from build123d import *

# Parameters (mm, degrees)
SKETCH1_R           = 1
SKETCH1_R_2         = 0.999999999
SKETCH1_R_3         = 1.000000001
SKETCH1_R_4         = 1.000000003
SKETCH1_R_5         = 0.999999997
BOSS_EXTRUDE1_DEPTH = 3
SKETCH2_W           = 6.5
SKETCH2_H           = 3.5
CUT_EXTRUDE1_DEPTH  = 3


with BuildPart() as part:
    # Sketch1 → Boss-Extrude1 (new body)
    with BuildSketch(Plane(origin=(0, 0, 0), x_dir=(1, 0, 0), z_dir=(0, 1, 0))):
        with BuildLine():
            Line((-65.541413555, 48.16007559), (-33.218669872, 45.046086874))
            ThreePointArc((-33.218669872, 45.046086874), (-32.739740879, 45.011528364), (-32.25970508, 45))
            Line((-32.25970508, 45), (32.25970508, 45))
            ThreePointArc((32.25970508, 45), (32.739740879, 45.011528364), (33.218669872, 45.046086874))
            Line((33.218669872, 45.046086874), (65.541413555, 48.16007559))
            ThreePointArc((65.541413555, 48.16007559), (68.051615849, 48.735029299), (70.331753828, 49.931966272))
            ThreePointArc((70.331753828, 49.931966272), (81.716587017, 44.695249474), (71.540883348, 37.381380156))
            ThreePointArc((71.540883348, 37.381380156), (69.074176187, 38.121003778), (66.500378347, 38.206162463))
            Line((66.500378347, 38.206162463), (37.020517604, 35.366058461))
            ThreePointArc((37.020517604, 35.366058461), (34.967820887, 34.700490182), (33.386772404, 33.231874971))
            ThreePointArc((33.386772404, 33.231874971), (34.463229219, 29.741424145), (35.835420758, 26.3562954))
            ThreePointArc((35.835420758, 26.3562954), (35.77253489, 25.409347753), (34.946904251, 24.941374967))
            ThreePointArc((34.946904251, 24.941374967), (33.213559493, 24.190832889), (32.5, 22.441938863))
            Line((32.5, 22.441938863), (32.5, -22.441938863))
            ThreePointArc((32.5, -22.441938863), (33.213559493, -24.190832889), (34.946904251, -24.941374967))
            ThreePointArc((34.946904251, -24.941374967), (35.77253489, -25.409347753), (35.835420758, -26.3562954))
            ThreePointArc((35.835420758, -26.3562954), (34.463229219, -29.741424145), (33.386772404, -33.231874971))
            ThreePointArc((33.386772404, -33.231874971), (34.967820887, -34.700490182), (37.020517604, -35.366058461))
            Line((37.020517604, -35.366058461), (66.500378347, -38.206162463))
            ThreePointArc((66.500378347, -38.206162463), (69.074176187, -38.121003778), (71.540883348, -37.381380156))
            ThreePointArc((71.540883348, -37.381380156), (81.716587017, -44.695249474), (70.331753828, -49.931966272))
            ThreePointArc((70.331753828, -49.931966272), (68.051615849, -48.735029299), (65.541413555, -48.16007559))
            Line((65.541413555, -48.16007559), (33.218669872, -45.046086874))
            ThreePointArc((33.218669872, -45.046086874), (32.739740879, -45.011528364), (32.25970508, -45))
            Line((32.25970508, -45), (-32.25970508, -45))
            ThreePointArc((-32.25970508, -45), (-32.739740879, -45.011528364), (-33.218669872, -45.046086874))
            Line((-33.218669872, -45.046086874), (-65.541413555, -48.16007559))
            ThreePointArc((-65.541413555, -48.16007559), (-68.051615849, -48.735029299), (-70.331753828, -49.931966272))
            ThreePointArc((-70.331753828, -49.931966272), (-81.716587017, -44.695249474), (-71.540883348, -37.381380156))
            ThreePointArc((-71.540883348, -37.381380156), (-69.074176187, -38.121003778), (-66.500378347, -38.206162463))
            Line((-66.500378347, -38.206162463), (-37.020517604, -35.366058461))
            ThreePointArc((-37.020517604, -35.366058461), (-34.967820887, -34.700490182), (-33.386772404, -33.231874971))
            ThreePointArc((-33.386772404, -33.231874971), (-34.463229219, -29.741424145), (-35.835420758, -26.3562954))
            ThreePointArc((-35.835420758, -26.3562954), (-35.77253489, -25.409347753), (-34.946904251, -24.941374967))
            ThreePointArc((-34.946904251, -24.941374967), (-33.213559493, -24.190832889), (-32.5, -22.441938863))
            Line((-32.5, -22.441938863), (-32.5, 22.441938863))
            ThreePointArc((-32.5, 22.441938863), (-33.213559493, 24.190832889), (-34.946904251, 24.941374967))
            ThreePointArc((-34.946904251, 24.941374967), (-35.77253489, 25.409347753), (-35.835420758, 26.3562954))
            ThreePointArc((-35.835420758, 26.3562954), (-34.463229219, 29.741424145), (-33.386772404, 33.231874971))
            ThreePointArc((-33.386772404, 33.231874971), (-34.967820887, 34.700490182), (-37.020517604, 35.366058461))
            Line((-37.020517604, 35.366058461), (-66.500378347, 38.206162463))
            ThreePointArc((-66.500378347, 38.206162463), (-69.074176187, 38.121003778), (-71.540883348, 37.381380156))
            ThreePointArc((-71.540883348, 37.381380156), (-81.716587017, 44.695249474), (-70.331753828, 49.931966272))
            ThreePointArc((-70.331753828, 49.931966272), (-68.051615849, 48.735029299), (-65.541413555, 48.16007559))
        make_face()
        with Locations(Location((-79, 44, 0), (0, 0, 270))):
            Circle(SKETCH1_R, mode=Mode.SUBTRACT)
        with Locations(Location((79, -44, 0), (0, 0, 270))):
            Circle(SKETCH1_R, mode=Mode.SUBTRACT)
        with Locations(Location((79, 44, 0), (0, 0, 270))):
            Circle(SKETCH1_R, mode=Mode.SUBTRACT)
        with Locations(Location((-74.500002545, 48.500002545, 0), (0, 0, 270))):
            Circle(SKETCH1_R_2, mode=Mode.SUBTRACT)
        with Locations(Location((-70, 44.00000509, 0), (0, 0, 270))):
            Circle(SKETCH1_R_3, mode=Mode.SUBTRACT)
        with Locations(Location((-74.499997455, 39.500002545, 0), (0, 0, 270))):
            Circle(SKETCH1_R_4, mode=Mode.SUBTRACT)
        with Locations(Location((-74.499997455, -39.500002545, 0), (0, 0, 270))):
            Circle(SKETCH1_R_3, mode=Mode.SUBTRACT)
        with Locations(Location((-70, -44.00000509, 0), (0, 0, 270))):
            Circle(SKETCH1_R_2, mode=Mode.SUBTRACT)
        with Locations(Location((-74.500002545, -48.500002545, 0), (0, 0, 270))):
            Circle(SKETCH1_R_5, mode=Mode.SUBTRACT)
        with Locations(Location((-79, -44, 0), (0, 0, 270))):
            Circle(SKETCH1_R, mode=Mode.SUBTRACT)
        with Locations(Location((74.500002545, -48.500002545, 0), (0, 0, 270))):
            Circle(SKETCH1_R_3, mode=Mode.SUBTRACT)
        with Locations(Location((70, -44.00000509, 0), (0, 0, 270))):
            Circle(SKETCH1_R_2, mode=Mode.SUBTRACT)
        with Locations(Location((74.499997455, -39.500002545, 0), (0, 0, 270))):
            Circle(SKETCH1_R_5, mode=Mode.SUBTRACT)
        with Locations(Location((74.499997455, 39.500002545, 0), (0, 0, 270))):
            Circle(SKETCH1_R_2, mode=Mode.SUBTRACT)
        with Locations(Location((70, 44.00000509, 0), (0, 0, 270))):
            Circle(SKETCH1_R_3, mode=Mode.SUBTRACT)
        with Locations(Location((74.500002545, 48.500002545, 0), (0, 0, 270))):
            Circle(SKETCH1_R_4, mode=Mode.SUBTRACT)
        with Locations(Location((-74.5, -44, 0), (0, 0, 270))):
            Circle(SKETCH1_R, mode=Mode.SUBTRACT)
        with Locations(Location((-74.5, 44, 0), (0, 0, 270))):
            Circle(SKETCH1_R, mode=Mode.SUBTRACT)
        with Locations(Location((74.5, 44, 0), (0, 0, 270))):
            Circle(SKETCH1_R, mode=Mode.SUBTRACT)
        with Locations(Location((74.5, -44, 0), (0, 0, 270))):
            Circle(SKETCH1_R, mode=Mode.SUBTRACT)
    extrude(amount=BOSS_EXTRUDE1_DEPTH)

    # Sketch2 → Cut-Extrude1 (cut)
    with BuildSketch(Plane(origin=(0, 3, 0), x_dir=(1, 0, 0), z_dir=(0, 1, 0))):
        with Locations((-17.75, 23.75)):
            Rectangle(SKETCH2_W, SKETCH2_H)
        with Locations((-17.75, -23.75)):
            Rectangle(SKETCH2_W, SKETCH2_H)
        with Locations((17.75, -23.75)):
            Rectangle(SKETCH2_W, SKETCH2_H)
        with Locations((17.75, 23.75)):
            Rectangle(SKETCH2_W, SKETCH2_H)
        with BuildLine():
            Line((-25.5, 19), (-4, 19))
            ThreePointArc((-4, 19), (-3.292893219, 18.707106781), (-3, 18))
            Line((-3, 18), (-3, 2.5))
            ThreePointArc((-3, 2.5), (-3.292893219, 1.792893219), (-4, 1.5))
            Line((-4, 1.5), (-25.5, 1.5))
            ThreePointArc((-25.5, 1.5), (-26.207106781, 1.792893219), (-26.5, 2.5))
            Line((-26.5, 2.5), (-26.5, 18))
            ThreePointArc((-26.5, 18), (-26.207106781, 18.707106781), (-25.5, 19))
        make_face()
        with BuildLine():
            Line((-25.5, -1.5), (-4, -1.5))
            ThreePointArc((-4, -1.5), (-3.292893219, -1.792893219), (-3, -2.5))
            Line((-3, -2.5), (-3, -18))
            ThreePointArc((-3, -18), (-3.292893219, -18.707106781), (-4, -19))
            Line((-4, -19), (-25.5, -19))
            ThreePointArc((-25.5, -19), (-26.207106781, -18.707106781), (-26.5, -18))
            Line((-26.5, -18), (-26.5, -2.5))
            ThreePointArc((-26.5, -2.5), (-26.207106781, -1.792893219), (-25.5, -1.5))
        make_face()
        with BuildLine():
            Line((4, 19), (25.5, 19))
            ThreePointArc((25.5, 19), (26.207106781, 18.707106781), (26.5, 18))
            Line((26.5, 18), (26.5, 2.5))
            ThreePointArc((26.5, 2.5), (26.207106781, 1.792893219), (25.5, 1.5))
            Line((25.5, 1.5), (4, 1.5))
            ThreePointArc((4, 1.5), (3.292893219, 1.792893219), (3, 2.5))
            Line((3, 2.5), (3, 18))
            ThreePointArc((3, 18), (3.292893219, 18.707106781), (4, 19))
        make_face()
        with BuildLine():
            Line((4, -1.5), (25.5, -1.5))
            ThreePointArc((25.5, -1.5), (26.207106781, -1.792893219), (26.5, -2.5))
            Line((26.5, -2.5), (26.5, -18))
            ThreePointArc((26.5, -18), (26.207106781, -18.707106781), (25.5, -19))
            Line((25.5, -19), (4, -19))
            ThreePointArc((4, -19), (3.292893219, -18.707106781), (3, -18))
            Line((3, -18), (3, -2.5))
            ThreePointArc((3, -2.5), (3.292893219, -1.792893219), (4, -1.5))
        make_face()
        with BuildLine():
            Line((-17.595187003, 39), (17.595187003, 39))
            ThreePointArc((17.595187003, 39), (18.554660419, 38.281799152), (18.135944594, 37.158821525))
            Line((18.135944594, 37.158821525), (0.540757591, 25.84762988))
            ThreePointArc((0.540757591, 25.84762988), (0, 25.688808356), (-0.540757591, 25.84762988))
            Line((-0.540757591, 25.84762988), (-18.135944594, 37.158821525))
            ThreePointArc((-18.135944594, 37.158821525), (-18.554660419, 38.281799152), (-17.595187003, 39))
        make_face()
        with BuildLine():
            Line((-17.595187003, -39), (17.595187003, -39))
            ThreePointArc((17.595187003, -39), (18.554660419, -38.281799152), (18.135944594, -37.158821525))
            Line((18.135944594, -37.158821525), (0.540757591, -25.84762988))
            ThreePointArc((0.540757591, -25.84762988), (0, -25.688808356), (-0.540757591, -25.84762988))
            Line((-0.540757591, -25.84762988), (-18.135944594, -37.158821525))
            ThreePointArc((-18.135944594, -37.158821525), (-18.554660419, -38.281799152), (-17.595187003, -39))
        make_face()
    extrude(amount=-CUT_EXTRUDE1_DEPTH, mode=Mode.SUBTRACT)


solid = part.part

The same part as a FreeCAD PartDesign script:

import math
import FreeCAD as App
import Part
import Sketcher

doc = App.newDocument("Part")
body = doc.addObject("PartDesign::Body", "Body")

# Sketch on XZ plane
sketch1 = doc.addObject("Sketcher::SketchObject", "Sketch")
body.addObject(sketch1)
sketch1.AttachmentSupport = (doc.XZ_Plane, [""])
sketch1.MapMode = "FlatFace"
sketch1.addGeometry([
    Part.LineSegment(App.Vector(-33.2, -45, 0), App.Vector(-65.5, -48.2, 0)),  # 0
    Part.ArcOfCircle(Part.Circle(App.Vector(-64.6, -58.1, 0), App.Vector(0, 0, 1), 10), math.radians(96), math.radians(125)),  # 1
    Part.ArcOfCircle(Part.Circle(App.Vector(-74.5, -44, 0), App.Vector(0, 0, 1), 7.2), math.radians(66), math.radians(305)),  # 2
    Part.ArcOfCircle(Part.Circle(App.Vector(-67.5, -28.3, 0), App.Vector(0, 0, 1), 10), math.radians(-114), math.radians(-84)),  # 3
    Part.LineSegment(App.Vector(-66.5, -38.2, 0), App.Vector(-37, -35.4, 0)),  # 4
    Part.ArcOfCircle(Part.Circle(App.Vector(-37.5, -30.4, 0), App.Vector(0, 0, 1), 5), math.radians(-84), math.radians(-35)),  # 5
    Part.ArcOfCircle(Part.Circle(App.Vector(-74.5, -44, 0), App.Vector(0, 0, 1), 42.5), math.radians(14.68), math.radians(24.53)),  # 6
    Part.ArcOfCircle(Part.Circle(App.Vector(-34.9, -25.9, 0), App.Vector(0, 0, 1), 1), math.radians(91), math.radians(205)),  # 7
    Part.ArcOfCircle(Part.Circle(App.Vector(-35, -22.4, 0), App.Vector(0, 0, 1), 2.5), math.radians(-89), math.radians(0)),  # 8
    Part.LineSegment(App.Vector(-32.5, -22.4, 0), App.Vector(-32.5, 22.4, 0)),  # 9
    Part.ArcOfCircle(Part.Circle(App.Vector(-35, 22.4, 0), App.Vector(0, 0, 1), 2.5), math.radians(0), math.radians(89)),  # 10
    Part.ArcOfCircle(Part.Circle(App.Vector(-34.9, 25.9, 0), App.Vector(0, 0, 1), 1), math.radians(155), math.radians(269)),  # 11
    Part.ArcOfCircle(Part.Circle(App.Vector(-74.5, 44, 0), App.Vector(0, 0, 1), 42.5), math.radians(-24.53), math.radians(-14.68)),  # 12
    Part.ArcOfCircle(Part.Circle(App.Vector(-37.5, 30.4, 0), App.Vector(0, 0, 1), 5), math.radians(35), math.radians(84)),  # 13
    Part.LineSegment(App.Vector(-37, 35.4, 0), App.Vector(-66.5, 38.2, 0)),  # 14
    Part.ArcOfCircle(Part.Circle(App.Vector(-67.5, 28.3, 0), App.Vector(0, 0, 1), 10), math.radians(84), math.radians(114)),  # 15
    Part.ArcOfCircle(Part.Circle(App.Vector(-74.5, 44, 0), App.Vector(0, 0, 1), 7.2), math.radians(55), math.radians(294)),  # 16
    Part.ArcOfCircle(Part.Circle(App.Vector(-64.6, 58.1, 0), App.Vector(0, 0, 1), 10), math.radians(-125), math.radians(-96)),  # 17
    Part.LineSegment(App.Vector(-65.5, 48.2, 0), App.Vector(-33.2, 45, 0)),  # 18
    Part.ArcOfCircle(Part.Circle(App.Vector(-32.3, 55, 0), App.Vector(0, 0, 1), 10), math.radians(-95.5), math.radians(-90)),  # 19
    Part.LineSegment(App.Vector(-32.3, 45, 0), App.Vector(32.3, 45, 0)),  # 20
    Part.ArcOfCircle(Part.Circle(App.Vector(32.3, 55, 0), App.Vector(0, 0, 1), 10), math.radians(-90), math.radians(-84.5)),  # 21
    Part.LineSegment(App.Vector(33.2, 45, 0), App.Vector(65.5, 48.2, 0)),  # 22
    Part.ArcOfCircle(Part.Circle(App.Vector(64.6, 58.1, 0), App.Vector(0, 0, 1), 10), math.radians(-84), math.radians(-55)),  # 23
    Part.ArcOfCircle(Part.Circle(App.Vector(74.5, 44, 0), App.Vector(0, 0, 1), 7.2), math.radians(-114), math.radians(125)),  # 24
    Part.ArcOfCircle(Part.Circle(App.Vector(67.5, 28.3, 0), App.Vector(0, 0, 1), 10), math.radians(66), math.radians(96)),  # 25
    Part.LineSegment(App.Vector(66.5, 38.2, 0), App.Vector(37, 35.4, 0)),  # 26
    Part.ArcOfCircle(Part.Circle(App.Vector(37.5, 30.4, 0), App.Vector(0, 0, 1), 5), math.radians(96), math.radians(145)),  # 27
    Part.ArcOfCircle(Part.Circle(App.Vector(74.5, 44, 0), App.Vector(0, 0, 1), 42.5), math.radians(-165.32), math.radians(-155.47)),  # 28
    Part.ArcOfCircle(Part.Circle(App.Vector(34.9, 25.9, 0), App.Vector(0, 0, 1), 1), math.radians(-89), math.radians(25)),  # 29
    Part.ArcOfCircle(Part.Circle(App.Vector(35, 22.4, 0), App.Vector(0, 0, 1), 2.5), math.radians(91), math.radians(180)),  # 30
    Part.LineSegment(App.Vector(32.5, 22.4, 0), App.Vector(32.5, -22.4, 0)),  # 31
    Part.ArcOfCircle(Part.Circle(App.Vector(35, -22.4, 0), App.Vector(0, 0, 1), 2.5), math.radians(180), math.radians(269)),  # 32
    Part.ArcOfCircle(Part.Circle(App.Vector(34.9, -25.9, 0), App.Vector(0, 0, 1), 1), math.radians(-25), math.radians(89)),  # 33
    Part.ArcOfCircle(Part.Circle(App.Vector(74.5, -44, 0), App.Vector(0, 0, 1), 42.5), math.radians(155.47), math.radians(165.32)),  # 34
    Part.ArcOfCircle(Part.Circle(App.Vector(37.5, -30.4, 0), App.Vector(0, 0, 1), 5), math.radians(-145), math.radians(-96)),  # 35
    Part.LineSegment(App.Vector(37, -35.4, 0), App.Vector(66.5, -38.2, 0)),  # 36
    Part.ArcOfCircle(Part.Circle(App.Vector(67.5, -28.3, 0), App.Vector(0, 0, 1), 10), math.radians(-96), math.radians(-66)),  # 37
    Part.ArcOfCircle(Part.Circle(App.Vector(74.5, -44, 0), App.Vector(0, 0, 1), 7.2), math.radians(-125), math.radians(114)),  # 38
    Part.ArcOfCircle(Part.Circle(App.Vector(64.6, -58.1, 0), App.Vector(0, 0, 1), 10), math.radians(55), math.radians(84)),  # 39
    Part.LineSegment(App.Vector(65.5, -48.2, 0), App.Vector(33.2, -45, 0)),  # 40
    Part.ArcOfCircle(Part.Circle(App.Vector(32.3, -55, 0), App.Vector(0, 0, 1), 10), math.radians(84.5), math.radians(90)),  # 41
    Part.LineSegment(App.Vector(32.3, -45, 0), App.Vector(-32.3, -45, 0)),  # 42
    Part.ArcOfCircle(Part.Circle(App.Vector(-32.3, -55, 0), App.Vector(0, 0, 1), 10), math.radians(90), math.radians(95.5)),  # 43
    Part.Circle(App.Vector(74.5, 48.5, 0), App.Vector(0, 0, 1), 1),  # 44
    Part.Circle(App.Vector(79, 44, 0), App.Vector(0, 0, 1), 1),  # 45
    Part.Circle(App.Vector(74.5, 44, 0), App.Vector(0, 0, 1), 1),  # 46
    Part.Circle(App.Vector(70, 44, 0), App.Vector(0, 0, 1), 1),  # 47
    Part.Circle(App.Vector(74.5, 39.5, 0), App.Vector(0, 0, 1), 1),  # 48
    Part.Circle(App.Vector(-74.5, 48.5, 0), App.Vector(0, 0, 1), 1),  # 49
    Part.Circle(App.Vector(-70, 44, 0), App.Vector(0, 0, 1), 1),  # 50
    Part.Circle(App.Vector(-74.5, 44, 0), App.Vector(0, 0, 1), 1),  # 51
    Part.Circle(App.Vector(-79, 44, 0), App.Vector(0, 0, 1), 1),  # 52
    Part.Circle(App.Vector(-74.5, 39.5, 0), App.Vector(0, 0, 1), 1),  # 53
    Part.Circle(App.Vector(74.5, -39.5, 0), App.Vector(0, 0, 1), 1),  # 54
    Part.Circle(App.Vector(79, -44, 0), App.Vector(0, 0, 1), 1),  # 55
    Part.Circle(App.Vector(74.5, -44, 0), App.Vector(0, 0, 1), 1),  # 56
    Part.Circle(App.Vector(74.5, -48.5, 0), App.Vector(0, 0, 1), 1),  # 57
    Part.Circle(App.Vector(70, -44, 0), App.Vector(0, 0, 1), 1),  # 58
    Part.Circle(App.Vector(-74.5, -39.5, 0), App.Vector(0, 0, 1), 1),  # 59
    Part.Circle(App.Vector(-70, -44, 0), App.Vector(0, 0, 1), 1),  # 60
    Part.Circle(App.Vector(-74.5, -44, 0), App.Vector(0, 0, 1), 1),  # 61
    Part.Circle(App.Vector(-79, -44, 0), App.Vector(0, 0, 1), 1),  # 62
    Part.Circle(App.Vector(-74.5, -48.5, 0), App.Vector(0, 0, 1), 1),  # 63
], False)
sketch1.addConstraint([
    Sketcher.Constraint("Tangent", 0, 2, 1, 1),
    Sketcher.Constraint("Tangent", 1, 2, 2, 2),
    Sketcher.Constraint("Tangent", 2, 1, 3, 1),
    Sketcher.Constraint("Tangent", 3, 2, 4, 1),
    Sketcher.Constraint("Tangent", 4, 2, 5, 1),
    Sketcher.Constraint("Coincident", 5, 2, 6, 1),
    Sketcher.Constraint("Tangent", 6, 2, 7, 2),
    Sketcher.Constraint("Tangent", 7, 1, 8, 1),
    Sketcher.Constraint("Tangent", 8, 2, 9, 1),
    Sketcher.Constraint("Tangent", 9, 2, 10, 1),
    Sketcher.Constraint("Tangent", 10, 2, 11, 2),
    Sketcher.Constraint("Tangent", 11, 1, 12, 1),
    Sketcher.Constraint("Coincident", 12, 2, 13, 1),
    Sketcher.Constraint("Tangent", 13, 2, 14, 1),
    Sketcher.Constraint("Tangent", 14, 2, 15, 1),
    Sketcher.Constraint("Tangent", 15, 2, 16, 2),
    Sketcher.Constraint("Tangent", 16, 1, 17, 1),
    Sketcher.Constraint("Tangent", 17, 2, 18, 1),
    Sketcher.Constraint("Tangent", 18, 2, 19, 1),
    Sketcher.Constraint("Tangent", 19, 2, 20, 1),
    Sketcher.Constraint("Tangent", 20, 2, 21, 1),
    Sketcher.Constraint("Tangent", 21, 2, 22, 1),
    Sketcher.Constraint("Tangent", 22, 2, 23, 1),
    Sketcher.Constraint("Tangent", 23, 2, 24, 2),
    Sketcher.Constraint("Tangent", 24, 1, 25, 1),
    Sketcher.Constraint("Tangent", 25, 2, 26, 1),
    Sketcher.Constraint("Tangent", 26, 2, 27, 1),
    Sketcher.Constraint("Coincident", 27, 2, 28, 1),
    Sketcher.Constraint("Tangent", 28, 2, 29, 2),
    Sketcher.Constraint("Tangent", 29, 1, 30, 1),
    Sketcher.Constraint("Tangent", 30, 2, 31, 1),
    Sketcher.Constraint("Tangent", 31, 2, 32, 1),
    Sketcher.Constraint("Tangent", 32, 2, 33, 2),
    Sketcher.Constraint("Tangent", 33, 1, 34, 1),
    Sketcher.Constraint("Coincident", 34, 2, 35, 1),
    Sketcher.Constraint("Tangent", 35, 2, 36, 1),
    Sketcher.Constraint("Tangent", 36, 2, 37, 1),
    Sketcher.Constraint("Tangent", 37, 2, 38, 2),
    Sketcher.Constraint("Tangent", 38, 1, 39, 1),
    Sketcher.Constraint("Tangent", 39, 2, 40, 1),
    Sketcher.Constraint("Tangent", 40, 2, 41, 1),
    Sketcher.Constraint("Tangent", 41, 2, 42, 1),
    Sketcher.Constraint("Tangent", 42, 2, 43, 1),
    Sketcher.Constraint("Tangent", 43, 2, 0, 1),
    Sketcher.Constraint("Vertical", 9),
    Sketcher.Constraint("Horizontal", 20),
    Sketcher.Constraint("Vertical", 31),
    Sketcher.Constraint("Horizontal", 42),
    Sketcher.Constraint("Coincident", 6, 3, 2, 3),
    Sketcher.Constraint("Coincident", 16, 3, 12, 3),
    Sketcher.Constraint("Coincident", 28, 3, 24, 3),
    Sketcher.Constraint("Coincident", 38, 3, 34, 3),
    Sketcher.Constraint("Coincident", 46, 3, 24, 3),
    Sketcher.Constraint("Coincident", 51, 3, 12, 3),
    Sketcher.Constraint("Coincident", 56, 3, 34, 3),
    Sketcher.Constraint("Coincident", 61, 3, 2, 3),
    Sketcher.Constraint("Equal", 1, 3),
    Sketcher.Constraint("Equal", 8, 10),
    Sketcher.Constraint("Equal", 7, 11),
    Sketcher.Constraint("Equal", 6, 12),
    Sketcher.Constraint("Equal", 5, 13),
    Sketcher.Constraint("Equal", 3, 15),
    Sketcher.Constraint("Equal", 2, 16),
    Sketcher.Constraint("Equal", 15, 17),
    Sketcher.Constraint("Equal", 17, 19),
    Sketcher.Constraint("Equal", 19, 21),
    Sketcher.Constraint("Equal", 21, 23),
    Sketcher.Constraint("Equal", 16, 24),
    Sketcher.Constraint("Equal", 23, 25),
    Sketcher.Constraint("Equal", 13, 27),
    Sketcher.Constraint("Equal", 12, 28),
    Sketcher.Constraint("Equal", 11, 29),
    Sketcher.Constraint("Equal", 10, 30),
    Sketcher.Constraint("Equal", 30, 32),
    Sketcher.Constraint("Equal", 29, 33),
    Sketcher.Constraint("Equal", 28, 34),
    Sketcher.Constraint("Equal", 27, 35),
    Sketcher.Constraint("Equal", 25, 37),
    Sketcher.Constraint("Equal", 24, 38),
    Sketcher.Constraint("Equal", 37, 39),
    Sketcher.Constraint("Equal", 39, 41),
    Sketcher.Constraint("Equal", 41, 43),
    Sketcher.Constraint("Equal", 33, 44),
    Sketcher.Constraint("Equal", 44, 45),
    Sketcher.Constraint("Equal", 45, 46),
    Sketcher.Constraint("Equal", 46, 47),
    Sketcher.Constraint("Equal", 47, 48),
    Sketcher.Constraint("Equal", 48, 49),
    Sketcher.Constraint("Equal", 49, 50),
    Sketcher.Constraint("Equal", 50, 51),
    Sketcher.Constraint("Equal", 51, 52),
    Sketcher.Constraint("Equal", 52, 53),
    Sketcher.Constraint("Equal", 53, 54),
    Sketcher.Constraint("Equal", 54, 55),
    Sketcher.Constraint("Equal", 55, 56),
    Sketcher.Constraint("Equal", 56, 57),
    Sketcher.Constraint("Equal", 57, 58),
    Sketcher.Constraint("Equal", 58, 59),
    Sketcher.Constraint("Equal", 59, 60),
    Sketcher.Constraint("Equal", 60, 61),
    Sketcher.Constraint("Equal", 61, 62),
    Sketcher.Constraint("Equal", 62, 63),
    Sketcher.Constraint("Symmetric", 1, 3, 23, 3, -1, 1),
    Sketcher.Constraint("Symmetric", 3, 3, 25, 3, -1, 1),
    Sketcher.Constraint("Symmetric", 5, 3, 27, 3, -1, 1),
    Sketcher.Constraint("Symmetric", 8, 3, 30, 3, -1, 1),
    Sketcher.Constraint("Symmetric", 11, 3, 33, 3, -1, 1),
    Sketcher.Constraint("Symmetric", 13, 3, 35, 3, -1, 1),
    Sketcher.Constraint("Symmetric", 15, 3, 37, 3, -1, 1),
    Sketcher.Constraint("Symmetric", 19, 3, 41, 3, -1, 1),
    Sketcher.Constraint("Symmetric", 53, 3, 54, 3, -1, 1),
    Sketcher.Constraint("Symmetric", 52, 3, 55, 3, -1, 1),
    Sketcher.Constraint("Symmetric", 49, 3, 57, 3, -1, 1),
    Sketcher.Constraint("Symmetric", 50, 3, 58, 3, -1, 1),
    Sketcher.Constraint("Symmetric", 48, 3, 59, 3, -1, 1),
    Sketcher.Constraint("Symmetric", 47, 3, 60, 3, -1, 1),
    Sketcher.Constraint("Symmetric", 45, 3, 62, 3, -1, 1),
    Sketcher.Constraint("Symmetric", 44, 3, 63, 3, -1, 1),
    Sketcher.Constraint("Symmetric", 17, 3, 23, 3, -2),
    Sketcher.Constraint("Symmetric", 15, 3, 25, 3, -2),
    Sketcher.Constraint("Symmetric", 13, 3, 27, 3, -2),
    Sketcher.Constraint("Symmetric", 44, 3, 49, 3, -2),
    Sketcher.Constraint("Symmetric", 47, 3, 50, 3, -2),
    Sketcher.Constraint("Symmetric", 45, 3, 52, 3, -2),
    Sketcher.Constraint("Symmetric", 48, 3, 53, 3, -2),
    Sketcher.Constraint("Symmetric", 0, 2, 39, 2, -2),
    Sketcher.Constraint("Parallel", 0, 4),
    Sketcher.Constraint("Parallel", 4, 22),
    Sketcher.Constraint("Horizontal", 11, 3, 29, 3),
    Sketcher.Constraint("Horizontal", 28, 3, 45, 3),
    Sketcher.Constraint("Diameter", 44, 2.0),
    Sketcher.Constraint("Radius", 1, 10.0),
    Sketcher.Constraint("Radius", 5, 5.0),
    Sketcher.Constraint("Radius", 6, 42.5),
    Sketcher.Constraint("Radius", 8, 2.5),
    Sketcher.Constraint("Radius", 2, 7.25),
    Sketcher.Constraint("DistanceY", 2, 3, -1, 1, 44.0),
    Sketcher.Constraint("DistanceX", 8, 3, -1, 1, 35.0),
    Sketcher.Constraint("DistanceY", -1, 1, 19, 3, 55.0),
    Sketcher.Constraint("DistanceX", -1, 1, 45, 3, 79.0),
    Sketcher.Constraint("DistanceX", -1, 1, 47, 3, 70.0),
    Sketcher.Constraint("DistanceX", 2, 3, -1, 1, 74.5),
    Sketcher.Constraint("DistanceX", 5, 3, -1, 1, 37.5),
    Sketcher.Constraint("Distance", 0, 32.472399),
    Sketcher.Constraint("DistanceX", 20, 1, 20, 2, 64.51941),
    Sketcher.Constraint("DistanceY", 5, 3, -1, 1, 30.389102),
    Sketcher.Constraint("DistanceY", 9, 1, 9, 2, 44.883878),
    Sketcher.Constraint("DistanceX", -1, 1, 44, 3, 74.500003),
    Sketcher.Constraint("DistanceY", -1, 1, 44, 3, 48.500003),
    Sketcher.Constraint("DistanceY", -1, 1, 47, 3, 44.000005),
    Sketcher.Constraint("DistanceX", -1, 1, 48, 3, 74.499997),
    Sketcher.Constraint("DistanceY", -1, 1, 48, 3, 39.500003),
])
pad1 = doc.addObject("PartDesign::Pad", "Pad")
body.addObject(pad1)
pad1.Profile = sketch1
pad1.Length = 3
pad1.Reversed = True

# Sketch on XZ plane
sketch2 = doc.addObject("Sketcher::SketchObject", "Sketch001")
body.addObject(sketch2)
sketch2.AttachmentSupport = (doc.XZ_Plane, [""])
sketch2.MapMode = "FlatFace"
sketch2.AttachmentOffset = App.Placement(App.Vector(0, 0, -3), App.Rotation())
sketch2.addGeometry([
    Part.LineSegment(App.Vector(-21, -25.5, 0), App.Vector(-21, -22, 0)),  # 0
    Part.LineSegment(App.Vector(-21, -22, 0), App.Vector(-14.5, -22, 0)),  # 1
    Part.LineSegment(App.Vector(-14.5, -22, 0), App.Vector(-14.5, -25.5, 0)),  # 2
    Part.LineSegment(App.Vector(-14.5, -25.5, 0), App.Vector(-21, -25.5, 0)),  # 3
    Part.LineSegment(App.Vector(-21, 22, 0), App.Vector(-21, 25.5, 0)),  # 4
    Part.LineSegment(App.Vector(-21, 25.5, 0), App.Vector(-14.5, 25.5, 0)),  # 5
    Part.LineSegment(App.Vector(-14.5, 25.5, 0), App.Vector(-14.5, 22, 0)),  # 6
    Part.LineSegment(App.Vector(-14.5, 22, 0), App.Vector(-21, 22, 0)),  # 7
    Part.LineSegment(App.Vector(14.5, 22, 0), App.Vector(14.5, 25.5, 0)),  # 8
    Part.LineSegment(App.Vector(14.5, 25.5, 0), App.Vector(21, 25.5, 0)),  # 9
    Part.LineSegment(App.Vector(21, 25.5, 0), App.Vector(21, 22, 0)),  # 10
    Part.LineSegment(App.Vector(21, 22, 0), App.Vector(14.5, 22, 0)),  # 11
    Part.LineSegment(App.Vector(14.5, -25.5, 0), App.Vector(14.5, -22, 0)),  # 12
    Part.LineSegment(App.Vector(14.5, -22, 0), App.Vector(21, -22, 0)),  # 13
    Part.LineSegment(App.Vector(21, -22, 0), App.Vector(21, -25.5, 0)),  # 14
    Part.LineSegment(App.Vector(21, -25.5, 0), App.Vector(14.5, -25.5, 0)),  # 15
    Part.LineSegment(App.Vector(-4, -19, 0), App.Vector(-25.5, -19, 0)),  # 16
    Part.ArcOfCircle(Part.Circle(App.Vector(-25.5, -18, 0), App.Vector(0, 0, 1), 1), math.radians(-180), math.radians(-90)),  # 17
    Part.LineSegment(App.Vector(-26.5, -18, 0), App.Vector(-26.5, -2.5, 0)),  # 18
    Part.ArcOfCircle(Part.Circle(App.Vector(-25.5, -2.5, 0), App.Vector(0, 0, 1), 1), math.radians(90), math.radians(180)),  # 19
    Part.LineSegment(App.Vector(-25.5, -1.5, 0), App.Vector(-4, -1.5, 0)),  # 20
    Part.ArcOfCircle(Part.Circle(App.Vector(-4, -2.5, 0), App.Vector(0, 0, 1), 1), math.radians(0), math.radians(90)),  # 21
    Part.LineSegment(App.Vector(-3, -2.5, 0), App.Vector(-3, -18, 0)),  # 22
    Part.ArcOfCircle(Part.Circle(App.Vector(-4, -18, 0), App.Vector(0, 0, 1), 1), math.radians(-90), math.radians(0)),  # 23
    Part.LineSegment(App.Vector(-4, 1.5, 0), App.Vector(-25.5, 1.5, 0)),  # 24
    Part.ArcOfCircle(Part.Circle(App.Vector(-25.5, 2.5, 0), App.Vector(0, 0, 1), 1), math.radians(-180), math.radians(-90)),  # 25
    Part.LineSegment(App.Vector(-26.5, 2.5, 0), App.Vector(-26.5, 18, 0)),  # 26
    Part.ArcOfCircle(Part.Circle(App.Vector(-25.5, 18, 0), App.Vector(0, 0, 1), 1), math.radians(90), math.radians(180)),  # 27
    Part.LineSegment(App.Vector(-25.5, 19, 0), App.Vector(-4, 19, 0)),  # 28
    Part.ArcOfCircle(Part.Circle(App.Vector(-4, 18, 0), App.Vector(0, 0, 1), 1), math.radians(0), math.radians(90)),  # 29
    Part.LineSegment(App.Vector(-3, 18, 0), App.Vector(-3, 2.5, 0)),  # 30
    Part.ArcOfCircle(Part.Circle(App.Vector(-4, 2.5, 0), App.Vector(0, 0, 1), 1), math.radians(-90), math.radians(0)),  # 31
    Part.LineSegment(App.Vector(25.5, -19, 0), App.Vector(4, -19, 0)),  # 32
    Part.ArcOfCircle(Part.Circle(App.Vector(4, -18, 0), App.Vector(0, 0, 1), 1), math.radians(-180), math.radians(-90)),  # 33
    Part.LineSegment(App.Vector(3, -18, 0), App.Vector(3, -2.5, 0)),  # 34
    Part.ArcOfCircle(Part.Circle(App.Vector(4, -2.5, 0), App.Vector(0, 0, 1), 1), math.radians(90), math.radians(180)),  # 35
    Part.LineSegment(App.Vector(4, -1.5, 0), App.Vector(25.5, -1.5, 0)),  # 36
    Part.ArcOfCircle(Part.Circle(App.Vector(25.5, -2.5, 0), App.Vector(0, 0, 1), 1), math.radians(0), math.radians(90)),  # 37
    Part.LineSegment(App.Vector(26.5, -2.5, 0), App.Vector(26.5, -18, 0)),  # 38
    Part.ArcOfCircle(Part.Circle(App.Vector(25.5, -18, 0), App.Vector(0, 0, 1), 1), math.radians(-90), math.radians(0)),  # 39
    Part.LineSegment(App.Vector(25.5, 1.5, 0), App.Vector(4, 1.5, 0)),  # 40
    Part.ArcOfCircle(Part.Circle(App.Vector(4, 2.5, 0), App.Vector(0, 0, 1), 1), math.radians(-180), math.radians(-90)),  # 41
    Part.LineSegment(App.Vector(3, 2.5, 0), App.Vector(3, 18, 0)),  # 42
    Part.ArcOfCircle(Part.Circle(App.Vector(4, 18, 0), App.Vector(0, 0, 1), 1), math.radians(90), math.radians(180)),  # 43
    Part.LineSegment(App.Vector(4, 19, 0), App.Vector(25.5, 19, 0)),  # 44
    Part.ArcOfCircle(Part.Circle(App.Vector(25.5, 18, 0), App.Vector(0, 0, 1), 1), math.radians(0), math.radians(90)),  # 45
    Part.LineSegment(App.Vector(26.5, 18, 0), App.Vector(26.5, 2.5, 0)),  # 46
    Part.ArcOfCircle(Part.Circle(App.Vector(25.5, 2.5, 0), App.Vector(0, 0, 1), 1), math.radians(-90), math.radians(0)),  # 47
    Part.LineSegment(App.Vector(17.6, -39, 0), App.Vector(-17.6, -39, 0)),  # 48
    Part.ArcOfCircle(Part.Circle(App.Vector(-17.6, -38, 0), App.Vector(0, 0, 1), 1), math.radians(123), math.radians(270)),  # 49
    Part.LineSegment(App.Vector(-18.1, -37.2, 0), App.Vector(-0.5, -25.8, 0)),  # 50
    Part.ArcOfCircle(Part.Circle(App.Vector(0, -26.7, 0), App.Vector(0, 0, 1), 1), math.radians(57), math.radians(123)),  # 51
    Part.LineSegment(App.Vector(0.5, -25.8, 0), App.Vector(18.1, -37.2, 0)),  # 52
    Part.ArcOfCircle(Part.Circle(App.Vector(17.6, -38, 0), App.Vector(0, 0, 1), 1), math.radians(-90), math.radians(57)),  # 53
    Part.LineSegment(App.Vector(-17.6, 39, 0), App.Vector(17.6, 39, 0)),  # 54
    Part.ArcOfCircle(Part.Circle(App.Vector(17.6, 38, 0), App.Vector(0, 0, 1), 1), math.radians(-57), math.radians(90)),  # 55
    Part.LineSegment(App.Vector(18.1, 37.2, 0), App.Vector(0.5, 25.8, 0)),  # 56
    Part.ArcOfCircle(Part.Circle(App.Vector(0, 26.7, 0), App.Vector(0, 0, 1), 1), math.radians(-123), math.radians(-57)),  # 57
    Part.LineSegment(App.Vector(-0.5, 25.8, 0), App.Vector(-18.1, 37.2, 0)),  # 58
    Part.ArcOfCircle(Part.Circle(App.Vector(-17.6, 38, 0), App.Vector(0, 0, 1), 1), math.radians(90), math.radians(237)),  # 59
], False)
sketch2.addConstraint([
    Sketcher.Constraint("Coincident", 0, 2, 1, 1),
    Sketcher.Constraint("Coincident", 1, 2, 2, 1),
    Sketcher.Constraint("Coincident", 2, 2, 3, 1),
    Sketcher.Constraint("Coincident", 3, 2, 0, 1),
    Sketcher.Constraint("Coincident", 4, 2, 5, 1),
    Sketcher.Constraint("Coincident", 5, 2, 6, 1),
    Sketcher.Constraint("Coincident", 6, 2, 7, 1),
    Sketcher.Constraint("Coincident", 7, 2, 4, 1),
    Sketcher.Constraint("Coincident", 8, 2, 9, 1),
    Sketcher.Constraint("Coincident", 9, 2, 10, 1),
    Sketcher.Constraint("Coincident", 10, 2, 11, 1),
    Sketcher.Constraint("Coincident", 11, 2, 8, 1),
    Sketcher.Constraint("Coincident", 12, 2, 13, 1),
    Sketcher.Constraint("Coincident", 13, 2, 14, 1),
    Sketcher.Constraint("Coincident", 14, 2, 15, 1),
    Sketcher.Constraint("Coincident", 15, 2, 12, 1),
    Sketcher.Constraint("Tangent", 16, 2, 17, 2),
    Sketcher.Constraint("Tangent", 17, 1, 18, 1),
    Sketcher.Constraint("Tangent", 18, 2, 19, 2),
    Sketcher.Constraint("Tangent", 19, 1, 20, 1),
    Sketcher.Constraint("Tangent", 20, 2, 21, 2),
    Sketcher.Constraint("Tangent", 21, 1, 22, 1),
    Sketcher.Constraint("Tangent", 22, 2, 23, 2),
    Sketcher.Constraint("Tangent", 23, 1, 16, 1),
    Sketcher.Constraint("Tangent", 24, 2, 25, 2),
    Sketcher.Constraint("Tangent", 25, 1, 26, 1),
    Sketcher.Constraint("Tangent", 26, 2, 27, 2),
    Sketcher.Constraint("Tangent", 27, 1, 28, 1),
    Sketcher.Constraint("Tangent", 28, 2, 29, 2),
    Sketcher.Constraint("Tangent", 29, 1, 30, 1),
    Sketcher.Constraint("Tangent", 30, 2, 31, 2),
    Sketcher.Constraint("Tangent", 31, 1, 24, 1),
    Sketcher.Constraint("Tangent", 32, 2, 33, 2),
    Sketcher.Constraint("Tangent", 33, 1, 34, 1),
    Sketcher.Constraint("Tangent", 34, 2, 35, 2),
    Sketcher.Constraint("Tangent", 35, 1, 36, 1),
    Sketcher.Constraint("Tangent", 36, 2, 37, 2),
    Sketcher.Constraint("Tangent", 37, 1, 38, 1),
    Sketcher.Constraint("Tangent", 38, 2, 39, 2),
    Sketcher.Constraint("Tangent", 39, 1, 32, 1),
    Sketcher.Constraint("Tangent", 40, 2, 41, 2),
    Sketcher.Constraint("Tangent", 41, 1, 42, 1),
    Sketcher.Constraint("Tangent", 42, 2, 43, 2),
    Sketcher.Constraint("Tangent", 43, 1, 44, 1),
    Sketcher.Constraint("Tangent", 44, 2, 45, 2),
    Sketcher.Constraint("Tangent", 45, 1, 46, 1),
    Sketcher.Constraint("Tangent", 46, 2, 47, 2),
    Sketcher.Constraint("Tangent", 47, 1, 40, 1),
    Sketcher.Constraint("Tangent", 48, 2, 49, 2),
    Sketcher.Constraint("Tangent", 49, 1, 50, 1),
    Sketcher.Constraint("Tangent", 50, 2, 51, 2),
    Sketcher.Constraint("Tangent", 51, 1, 52, 1),
    Sketcher.Constraint("Tangent", 52, 2, 53, 2),
    Sketcher.Constraint("Tangent", 53, 1, 48, 1),
    Sketcher.Constraint("Tangent", 54, 2, 55, 2),
    Sketcher.Constraint("Tangent", 55, 1, 56, 1),
    Sketcher.Constraint("Tangent", 56, 2, 57, 2),
    Sketcher.Constraint("Tangent", 57, 1, 58, 1),
    Sketcher.Constraint("Tangent", 58, 2, 59, 2),
    Sketcher.Constraint("Tangent", 59, 1, 54, 1),
    Sketcher.Constraint("Vertical", 0),
    Sketcher.Constraint("Horizontal", 1),
    Sketcher.Constraint("Vertical", 2),
    Sketcher.Constraint("Horizontal", 3),
    Sketcher.Constraint("Vertical", 4),
    Sketcher.Constraint("Horizontal", 5),
    Sketcher.Constraint("Vertical", 6),
    Sketcher.Constraint("Horizontal", 7),
    Sketcher.Constraint("Vertical", 8),
    Sketcher.Constraint("Horizontal", 9),
    Sketcher.Constraint("Vertical", 10),
    Sketcher.Constraint("Horizontal", 11),
    Sketcher.Constraint("Vertical", 12),
    Sketcher.Constraint("Horizontal", 13),
    Sketcher.Constraint("Vertical", 14),
    Sketcher.Constraint("Horizontal", 15),
    Sketcher.Constraint("Horizontal", 16),
    Sketcher.Constraint("Vertical", 18),
    Sketcher.Constraint("Horizontal", 20),
    Sketcher.Constraint("Vertical", 22),
    Sketcher.Constraint("Horizontal", 24),
    Sketcher.Constraint("Vertical", 26),
    Sketcher.Constraint("Horizontal", 28),
    Sketcher.Constraint("Vertical", 30),
    Sketcher.Constraint("Horizontal", 32),
    Sketcher.Constraint("Vertical", 34),
    Sketcher.Constraint("Horizontal", 36),
    Sketcher.Constraint("Vertical", 38),
    Sketcher.Constraint("Horizontal", 40),
    Sketcher.Constraint("Vertical", 42),
    Sketcher.Constraint("Horizontal", 44),
    Sketcher.Constraint("Vertical", 46),
    Sketcher.Constraint("Horizontal", 48),
    Sketcher.Constraint("Horizontal", 54),
    Sketcher.Constraint("Equal", 17, 19),
    Sketcher.Constraint("Equal", 19, 21),
    Sketcher.Constraint("Equal", 21, 23),
    Sketcher.Constraint("Equal", 23, 25),
    Sketcher.Constraint("Equal", 25, 27),
    Sketcher.Constraint("Equal", 27, 29),
    Sketcher.Constraint("Equal", 29, 31),
    Sketcher.Constraint("Equal", 31, 33),
    Sketcher.Constraint("Equal", 33, 35),
    Sketcher.Constraint("Equal", 35, 37),
    Sketcher.Constraint("Equal", 37, 39),
    Sketcher.Constraint("Equal", 39, 41),
    Sketcher.Constraint("Equal", 41, 43),
    Sketcher.Constraint("Equal", 43, 45),
    Sketcher.Constraint("Equal", 45, 47),
    Sketcher.Constraint("Equal", 47, 49),
    Sketcher.Constraint("Equal", 49, 51),
    Sketcher.Constraint("Equal", 51, 53),
    Sketcher.Constraint("Equal", 53, 55),
    Sketcher.Constraint("Equal", 55, 57),
    Sketcher.Constraint("Equal", 57, 59),
    Sketcher.Constraint("Symmetric", 29, 3, 33, 3, -1, 1),
    Sketcher.Constraint("Symmetric", 25, 3, 37, 3, -1, 1),
    Sketcher.Constraint("Symmetric", 21, 3, 41, 3, -1, 1),
    Sketcher.Constraint("Symmetric", 17, 3, 45, 3, -1, 1),
    Sketcher.Constraint("Symmetric", 49, 3, 55, 3, -1, 1),
    Sketcher.Constraint("Symmetric", 51, 3, 57, 3, -1, 1),
    Sketcher.Constraint("Symmetric", 2, 2, 8, 2, -1, 1),
    Sketcher.Constraint("Symmetric", 0, 2, 10, 2, -1, 1),
    Sketcher.Constraint("Symmetric", 6, 2, 12, 2, -1, 1),
    Sketcher.Constraint("Symmetric", 4, 2, 14, 2, -1, 1),
    Sketcher.Constraint("Symmetric", 23, 3, 33, 3, -2),
    Sketcher.Constraint("Symmetric", 19, 3, 37, 3, -2),
    Sketcher.Constraint("Symmetric", 5, 2, 8, 2, -2),
    Sketcher.Constraint("Symmetric", 7, 2, 10, 2, -2),
    Sketcher.Constraint("Symmetric", 50, 2, 51, 1, -2),
    Sketcher.Constraint("Parallel", 52, 58),
    Sketcher.Constraint("Radius", 17, 1.0),
    Sketcher.Constraint("DistanceX", 1, 1, 1, 2, 6.5),
    Sketcher.Constraint("DistanceX", 16, 2, 16, 1, 21.5),
    Sketcher.Constraint("DistanceY", 0, 1, 0, 2, 3.5),
    Sketcher.Constraint("DistanceY", 18, 1, 18, 2, 15.5),
    Sketcher.Constraint("DistanceY", 17, 3, -1, 1, 18.0),
    Sketcher.Constraint("DistanceX", 21, 3, -1, 1, 4.0),
    Sketcher.Constraint("DistanceY", 49, 3, -1, 1, 38.0),
    Sketcher.Constraint("DistanceX", 0, 2, -1, 1, 21.0),
    Sketcher.Constraint("DistanceY", 0, 2, -1, 1, 22.0),
    Sketcher.Constraint("DistanceX", 48, 2, 48, 1, 35.190374),
    Sketcher.Constraint("DistanceY", 51, 3, -1, 1, 26.688808),
])
pocket1 = doc.addObject("PartDesign::Pocket", "Pocket")
body.addObject(pocket1)
pocket1.Profile = sketch2
pocket1.Length = 3
pocket1.Reversed = True

doc.recompute()
